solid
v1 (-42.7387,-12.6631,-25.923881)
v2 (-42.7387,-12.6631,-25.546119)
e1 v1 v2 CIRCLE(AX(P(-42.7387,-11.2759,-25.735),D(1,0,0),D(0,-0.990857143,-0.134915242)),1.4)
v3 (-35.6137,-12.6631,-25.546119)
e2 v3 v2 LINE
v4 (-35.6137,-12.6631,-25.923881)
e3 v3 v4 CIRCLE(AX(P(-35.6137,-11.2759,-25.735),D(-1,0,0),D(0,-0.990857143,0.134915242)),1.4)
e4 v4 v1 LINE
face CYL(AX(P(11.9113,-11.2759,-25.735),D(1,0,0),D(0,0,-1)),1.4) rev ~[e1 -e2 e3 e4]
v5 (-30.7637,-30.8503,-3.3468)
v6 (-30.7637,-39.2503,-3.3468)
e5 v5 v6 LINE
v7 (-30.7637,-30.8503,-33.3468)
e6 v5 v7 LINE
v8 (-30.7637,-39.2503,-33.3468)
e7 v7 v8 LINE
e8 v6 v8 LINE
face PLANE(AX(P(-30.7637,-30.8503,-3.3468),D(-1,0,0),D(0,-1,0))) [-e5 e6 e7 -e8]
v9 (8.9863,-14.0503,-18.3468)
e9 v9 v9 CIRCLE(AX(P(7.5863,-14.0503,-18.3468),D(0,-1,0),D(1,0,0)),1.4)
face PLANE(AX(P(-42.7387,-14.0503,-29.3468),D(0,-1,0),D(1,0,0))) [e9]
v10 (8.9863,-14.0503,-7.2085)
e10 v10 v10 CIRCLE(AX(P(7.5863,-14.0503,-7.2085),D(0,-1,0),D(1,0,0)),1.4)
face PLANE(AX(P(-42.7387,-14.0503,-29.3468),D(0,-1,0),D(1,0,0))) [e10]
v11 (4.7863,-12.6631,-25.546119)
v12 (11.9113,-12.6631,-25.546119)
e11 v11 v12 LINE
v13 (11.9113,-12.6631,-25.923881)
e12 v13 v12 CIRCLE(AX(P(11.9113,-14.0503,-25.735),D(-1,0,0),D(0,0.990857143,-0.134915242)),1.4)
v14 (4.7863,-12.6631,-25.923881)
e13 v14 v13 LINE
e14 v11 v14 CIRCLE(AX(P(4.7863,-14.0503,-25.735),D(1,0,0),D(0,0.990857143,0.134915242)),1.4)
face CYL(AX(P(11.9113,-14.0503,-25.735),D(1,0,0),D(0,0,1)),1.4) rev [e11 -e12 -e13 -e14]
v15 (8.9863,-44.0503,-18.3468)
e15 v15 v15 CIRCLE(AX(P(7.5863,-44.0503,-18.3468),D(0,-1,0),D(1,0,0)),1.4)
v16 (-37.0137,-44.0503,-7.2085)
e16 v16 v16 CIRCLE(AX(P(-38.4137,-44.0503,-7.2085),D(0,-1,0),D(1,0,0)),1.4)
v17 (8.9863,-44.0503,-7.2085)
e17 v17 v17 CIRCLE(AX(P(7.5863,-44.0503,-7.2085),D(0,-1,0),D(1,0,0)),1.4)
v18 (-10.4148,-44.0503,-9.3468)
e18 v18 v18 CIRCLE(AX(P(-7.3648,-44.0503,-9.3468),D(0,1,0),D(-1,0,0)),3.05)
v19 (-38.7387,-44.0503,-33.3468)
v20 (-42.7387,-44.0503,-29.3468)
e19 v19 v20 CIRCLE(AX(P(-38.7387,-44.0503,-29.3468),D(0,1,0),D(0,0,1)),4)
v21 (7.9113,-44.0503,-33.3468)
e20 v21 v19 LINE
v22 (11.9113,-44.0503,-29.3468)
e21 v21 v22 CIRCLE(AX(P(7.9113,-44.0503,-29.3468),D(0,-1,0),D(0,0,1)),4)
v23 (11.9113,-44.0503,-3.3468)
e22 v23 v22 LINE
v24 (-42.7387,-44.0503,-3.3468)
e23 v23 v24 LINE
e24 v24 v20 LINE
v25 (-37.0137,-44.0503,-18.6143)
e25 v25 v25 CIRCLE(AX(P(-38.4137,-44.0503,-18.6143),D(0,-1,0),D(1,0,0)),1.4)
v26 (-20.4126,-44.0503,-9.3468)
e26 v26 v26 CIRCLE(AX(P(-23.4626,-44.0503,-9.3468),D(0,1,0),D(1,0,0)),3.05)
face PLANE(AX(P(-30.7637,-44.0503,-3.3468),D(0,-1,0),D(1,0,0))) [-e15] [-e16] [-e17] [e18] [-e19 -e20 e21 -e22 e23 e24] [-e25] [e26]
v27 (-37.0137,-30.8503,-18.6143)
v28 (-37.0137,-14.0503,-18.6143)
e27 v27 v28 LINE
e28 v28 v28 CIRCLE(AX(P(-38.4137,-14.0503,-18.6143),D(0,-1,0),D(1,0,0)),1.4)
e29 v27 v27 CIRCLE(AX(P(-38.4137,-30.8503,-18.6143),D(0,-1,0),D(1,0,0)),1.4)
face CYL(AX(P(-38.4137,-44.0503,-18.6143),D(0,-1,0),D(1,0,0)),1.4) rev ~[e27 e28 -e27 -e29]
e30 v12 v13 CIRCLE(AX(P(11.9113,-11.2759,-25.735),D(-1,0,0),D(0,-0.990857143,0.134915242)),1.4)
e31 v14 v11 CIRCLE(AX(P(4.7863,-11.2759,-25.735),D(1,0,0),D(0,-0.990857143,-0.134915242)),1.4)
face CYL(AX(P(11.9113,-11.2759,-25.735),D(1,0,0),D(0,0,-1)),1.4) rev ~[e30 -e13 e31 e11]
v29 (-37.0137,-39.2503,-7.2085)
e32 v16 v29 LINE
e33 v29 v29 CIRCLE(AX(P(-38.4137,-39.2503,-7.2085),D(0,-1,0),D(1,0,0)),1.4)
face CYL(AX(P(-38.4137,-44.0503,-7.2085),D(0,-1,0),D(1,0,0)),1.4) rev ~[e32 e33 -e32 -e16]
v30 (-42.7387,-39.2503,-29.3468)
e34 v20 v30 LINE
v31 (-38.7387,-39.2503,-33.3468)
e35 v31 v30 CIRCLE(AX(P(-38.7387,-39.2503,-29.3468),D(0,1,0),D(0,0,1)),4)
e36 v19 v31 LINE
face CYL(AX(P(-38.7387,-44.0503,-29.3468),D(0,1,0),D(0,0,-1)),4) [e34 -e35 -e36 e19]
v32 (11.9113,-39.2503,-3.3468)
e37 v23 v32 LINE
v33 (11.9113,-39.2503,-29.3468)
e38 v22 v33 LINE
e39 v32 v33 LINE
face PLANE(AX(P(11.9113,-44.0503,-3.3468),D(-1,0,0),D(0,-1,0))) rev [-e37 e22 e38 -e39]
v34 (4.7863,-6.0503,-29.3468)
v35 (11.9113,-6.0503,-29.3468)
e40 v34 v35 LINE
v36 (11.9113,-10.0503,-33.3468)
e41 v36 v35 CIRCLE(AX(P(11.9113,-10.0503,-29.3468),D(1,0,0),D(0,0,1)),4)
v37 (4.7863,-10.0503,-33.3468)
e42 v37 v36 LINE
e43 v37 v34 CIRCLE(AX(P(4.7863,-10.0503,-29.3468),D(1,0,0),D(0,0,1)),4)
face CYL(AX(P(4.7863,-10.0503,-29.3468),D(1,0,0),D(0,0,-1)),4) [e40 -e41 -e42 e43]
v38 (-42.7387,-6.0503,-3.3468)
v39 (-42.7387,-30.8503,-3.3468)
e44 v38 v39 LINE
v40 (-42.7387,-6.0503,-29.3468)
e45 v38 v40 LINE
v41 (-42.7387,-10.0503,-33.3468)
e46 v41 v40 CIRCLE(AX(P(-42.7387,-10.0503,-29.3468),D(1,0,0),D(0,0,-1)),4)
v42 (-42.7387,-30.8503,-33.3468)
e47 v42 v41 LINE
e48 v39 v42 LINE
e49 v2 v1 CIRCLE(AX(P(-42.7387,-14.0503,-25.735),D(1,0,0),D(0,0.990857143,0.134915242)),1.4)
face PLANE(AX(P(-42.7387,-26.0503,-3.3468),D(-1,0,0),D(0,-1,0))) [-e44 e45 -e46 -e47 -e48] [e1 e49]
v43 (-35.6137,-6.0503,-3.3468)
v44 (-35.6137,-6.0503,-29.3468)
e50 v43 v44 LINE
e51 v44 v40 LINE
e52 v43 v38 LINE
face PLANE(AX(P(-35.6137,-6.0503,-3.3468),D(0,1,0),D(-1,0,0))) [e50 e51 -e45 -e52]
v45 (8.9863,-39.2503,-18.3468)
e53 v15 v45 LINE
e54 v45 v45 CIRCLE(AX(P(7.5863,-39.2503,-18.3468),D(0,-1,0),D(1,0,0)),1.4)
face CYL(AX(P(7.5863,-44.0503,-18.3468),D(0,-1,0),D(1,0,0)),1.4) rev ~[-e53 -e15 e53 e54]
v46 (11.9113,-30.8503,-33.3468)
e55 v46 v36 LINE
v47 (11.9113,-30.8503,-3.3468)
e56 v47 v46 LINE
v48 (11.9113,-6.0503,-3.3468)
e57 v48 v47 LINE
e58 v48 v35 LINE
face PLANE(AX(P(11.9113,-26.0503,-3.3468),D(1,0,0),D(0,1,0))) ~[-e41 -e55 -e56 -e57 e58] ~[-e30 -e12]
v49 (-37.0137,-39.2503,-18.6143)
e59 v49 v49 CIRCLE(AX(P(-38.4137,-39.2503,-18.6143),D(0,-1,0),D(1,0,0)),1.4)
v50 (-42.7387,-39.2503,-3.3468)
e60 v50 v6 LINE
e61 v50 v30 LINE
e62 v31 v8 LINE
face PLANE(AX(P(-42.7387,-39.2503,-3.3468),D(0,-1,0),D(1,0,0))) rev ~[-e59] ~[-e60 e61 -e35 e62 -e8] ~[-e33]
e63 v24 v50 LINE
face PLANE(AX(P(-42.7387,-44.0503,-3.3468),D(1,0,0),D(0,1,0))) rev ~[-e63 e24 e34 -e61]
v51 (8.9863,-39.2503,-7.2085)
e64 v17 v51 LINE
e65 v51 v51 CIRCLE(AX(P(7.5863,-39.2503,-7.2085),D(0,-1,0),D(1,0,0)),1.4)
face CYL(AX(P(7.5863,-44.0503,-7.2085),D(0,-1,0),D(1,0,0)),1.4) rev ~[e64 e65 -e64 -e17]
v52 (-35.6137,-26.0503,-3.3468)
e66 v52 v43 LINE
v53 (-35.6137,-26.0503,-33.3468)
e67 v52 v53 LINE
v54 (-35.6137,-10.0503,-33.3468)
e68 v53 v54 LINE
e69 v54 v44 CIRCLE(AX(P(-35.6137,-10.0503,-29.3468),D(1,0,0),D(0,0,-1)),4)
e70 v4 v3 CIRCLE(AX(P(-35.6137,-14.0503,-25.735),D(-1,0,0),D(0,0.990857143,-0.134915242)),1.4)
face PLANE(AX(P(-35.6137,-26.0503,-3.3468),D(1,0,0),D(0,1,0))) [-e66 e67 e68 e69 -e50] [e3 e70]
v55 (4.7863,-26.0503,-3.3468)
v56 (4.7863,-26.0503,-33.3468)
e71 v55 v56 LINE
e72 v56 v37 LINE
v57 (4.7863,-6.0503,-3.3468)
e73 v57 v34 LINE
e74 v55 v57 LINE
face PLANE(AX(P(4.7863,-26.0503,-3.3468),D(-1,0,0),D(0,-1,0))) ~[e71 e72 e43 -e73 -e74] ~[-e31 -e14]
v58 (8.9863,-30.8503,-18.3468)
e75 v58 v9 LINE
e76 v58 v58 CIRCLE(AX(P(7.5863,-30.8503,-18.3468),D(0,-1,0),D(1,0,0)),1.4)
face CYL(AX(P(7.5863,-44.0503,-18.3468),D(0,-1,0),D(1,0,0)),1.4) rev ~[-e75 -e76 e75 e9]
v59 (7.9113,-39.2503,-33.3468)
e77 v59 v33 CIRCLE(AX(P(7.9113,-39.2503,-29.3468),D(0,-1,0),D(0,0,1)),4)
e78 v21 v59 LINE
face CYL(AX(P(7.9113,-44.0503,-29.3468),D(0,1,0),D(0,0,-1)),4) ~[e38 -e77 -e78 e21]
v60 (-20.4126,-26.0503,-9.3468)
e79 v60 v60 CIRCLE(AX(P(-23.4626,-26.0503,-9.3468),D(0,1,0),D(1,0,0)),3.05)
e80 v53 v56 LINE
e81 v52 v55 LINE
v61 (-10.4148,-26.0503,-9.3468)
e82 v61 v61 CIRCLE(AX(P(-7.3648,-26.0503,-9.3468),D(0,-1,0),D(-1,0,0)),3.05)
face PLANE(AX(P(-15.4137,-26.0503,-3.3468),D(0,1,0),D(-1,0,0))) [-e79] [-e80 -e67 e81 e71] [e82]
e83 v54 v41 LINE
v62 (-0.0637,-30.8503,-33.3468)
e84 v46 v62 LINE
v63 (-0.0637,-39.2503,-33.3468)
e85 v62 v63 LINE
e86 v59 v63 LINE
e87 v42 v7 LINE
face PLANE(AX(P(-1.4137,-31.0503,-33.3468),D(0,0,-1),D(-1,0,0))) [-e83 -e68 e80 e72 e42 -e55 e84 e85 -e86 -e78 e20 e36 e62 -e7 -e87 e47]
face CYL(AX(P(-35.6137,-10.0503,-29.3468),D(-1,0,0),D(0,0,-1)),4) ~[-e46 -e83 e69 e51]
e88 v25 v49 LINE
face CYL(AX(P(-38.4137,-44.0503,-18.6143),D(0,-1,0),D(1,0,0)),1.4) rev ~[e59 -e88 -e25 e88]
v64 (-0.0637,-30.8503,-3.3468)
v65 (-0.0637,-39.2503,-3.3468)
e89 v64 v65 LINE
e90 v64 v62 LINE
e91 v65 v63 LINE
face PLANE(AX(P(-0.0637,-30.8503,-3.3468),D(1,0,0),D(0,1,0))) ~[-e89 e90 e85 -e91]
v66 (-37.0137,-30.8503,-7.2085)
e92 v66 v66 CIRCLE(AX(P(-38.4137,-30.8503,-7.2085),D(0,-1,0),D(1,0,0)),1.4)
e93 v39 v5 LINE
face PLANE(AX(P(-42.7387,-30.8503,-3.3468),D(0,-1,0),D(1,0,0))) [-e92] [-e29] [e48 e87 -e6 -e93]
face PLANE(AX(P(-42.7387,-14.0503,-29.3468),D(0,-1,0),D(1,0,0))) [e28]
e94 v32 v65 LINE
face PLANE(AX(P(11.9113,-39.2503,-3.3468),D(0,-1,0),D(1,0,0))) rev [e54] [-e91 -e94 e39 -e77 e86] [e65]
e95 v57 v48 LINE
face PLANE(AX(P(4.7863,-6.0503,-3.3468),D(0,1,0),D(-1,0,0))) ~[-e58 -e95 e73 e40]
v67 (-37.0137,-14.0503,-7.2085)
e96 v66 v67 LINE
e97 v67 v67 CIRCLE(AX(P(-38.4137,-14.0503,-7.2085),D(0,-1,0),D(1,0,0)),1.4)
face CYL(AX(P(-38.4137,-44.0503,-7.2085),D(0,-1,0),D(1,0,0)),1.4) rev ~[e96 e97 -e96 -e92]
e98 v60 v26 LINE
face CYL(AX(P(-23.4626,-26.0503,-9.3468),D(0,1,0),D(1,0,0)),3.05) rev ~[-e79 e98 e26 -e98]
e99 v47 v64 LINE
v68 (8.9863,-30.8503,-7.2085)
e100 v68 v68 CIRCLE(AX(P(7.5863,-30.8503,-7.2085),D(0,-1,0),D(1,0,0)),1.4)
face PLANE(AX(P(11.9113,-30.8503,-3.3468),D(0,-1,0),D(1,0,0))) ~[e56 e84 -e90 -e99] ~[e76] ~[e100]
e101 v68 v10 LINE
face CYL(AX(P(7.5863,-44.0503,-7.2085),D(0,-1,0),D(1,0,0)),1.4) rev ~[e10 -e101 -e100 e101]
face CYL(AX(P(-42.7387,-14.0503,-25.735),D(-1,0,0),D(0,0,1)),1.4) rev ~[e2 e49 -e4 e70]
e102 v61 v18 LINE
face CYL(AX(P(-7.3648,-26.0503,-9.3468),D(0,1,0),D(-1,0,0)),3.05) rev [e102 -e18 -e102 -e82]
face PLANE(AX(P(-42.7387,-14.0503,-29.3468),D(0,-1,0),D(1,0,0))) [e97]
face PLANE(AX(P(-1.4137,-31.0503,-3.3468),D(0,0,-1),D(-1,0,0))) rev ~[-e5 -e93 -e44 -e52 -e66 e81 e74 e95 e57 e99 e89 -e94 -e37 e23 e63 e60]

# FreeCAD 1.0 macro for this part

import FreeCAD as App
import Part
import Sketcher

V = App.Vector
Q = App.Units.Quantity


def edges_at(feature, points):
    """Names of the edges that pass closest to the given points."""
    edges = feature.Shape.Edges
    near = lambda p: min(range(len(edges)), key=lambda i: edges[i].distToShape(Part.Vertex(*p))[0])
    return sorted({f"Edge{near(p) + 1}" for p in points})


def add_polygon(sketch, points):
    """Adds a closed chain of lines whose ends are joined by coincident constraints."""
    first, n = sketch.GeometryCount, len(points)
    for a, b in zip(points, points[1:] + points[:1]):
        sketch.addGeometry(Part.LineSegment(App.Vector(*a, 0), App.Vector(*b, 0)), False)
    for i in range(n):
        sketch.addConstraint(Sketcher.Constraint("Coincident", first + i, 2, first + (i + 1) % n, 1))

doc = App.newDocument("Part")
body = doc.addObject("PartDesign::Body", "Body")

# Sketch on XY plane
sketch1 = body.newObject("Sketcher::SketchObject", "Sketch")
sketch1.AttachmentSupport = (doc.getObject("XY_Plane"), [""])
sketch1.MapMode = "FlatFace"
sketch1.AttachmentOffset = App.Placement(V(0, 0, -3.3468), App.Rotation())
add_polygon(sketch1, [(-15.4, -26.1), (-15.4, -44.1), (-42.7, -44.1), (-42.7, -39.3), (-30.8, -39.3), (-30.8, -30.9), (-42.7, -30.9), (-42.7, -6.1), (-35.6, -6.1), (-35.6, -26.1)])  # lines 0-9
sketch1.addConstraint(Sketcher.Constraint("Vertical", 0))
sketch1.addConstraint(Sketcher.Constraint("Horizontal", 1))
sketch1.addConstraint(Sketcher.Constraint("Vertical", 2))
sketch1.addConstraint(Sketcher.Constraint("Horizontal", 3))
sketch1.addConstraint(Sketcher.Constraint("Vertical", 4))
sketch1.addConstraint(Sketcher.Constraint("Horizontal", 5))
sketch1.addConstraint(Sketcher.Constraint("Vertical", 6))
sketch1.addConstraint(Sketcher.Constraint("Horizontal", 7))
sketch1.addConstraint(Sketcher.Constraint("Vertical", 8))
sketch1.addConstraint(Sketcher.Constraint("Horizontal", 9))
sketch1.addConstraint(Sketcher.Constraint("Vertical", 2, 2, 5, 2))
sketch1.addConstraint(Sketcher.Constraint("DistanceY", 8, 2, 8, 1, Q("20 mm")))
sketch1.addConstraint(Sketcher.Constraint("DistanceY", 0, 2, 0, 1, Q("18 mm")))
sketch1.addConstraint(Sketcher.Constraint("DistanceX", 9, 1, 9, 2, Q("20.2 mm")))
sketch1.addConstraint(Sketcher.Constraint("DistanceY", 2, 1, 2, 2, Q("4.8 mm")))
sketch1.addConstraint(Sketcher.Constraint("DistanceY", 4, 1, 4, 2, Q("8.4 mm")))
sketch1.addConstraint(Sketcher.Constraint("DistanceX", 1, 2, 1, 1, Q("27.325 mm")))
sketch1.addConstraint(Sketcher.Constraint("DistanceX", 3, 1, 3, 2, Q("11.975 mm")))
sketch1.addConstraint(Sketcher.Constraint("DistanceX", 0, 2, -1, 1, Q("15.4137 mm")))
sketch1.addConstraint(Sketcher.Constraint("DistanceY", 0, 2, -1, 1, Q("44.0503 mm")))
pad1 = body.newObject("PartDesign::Pad", "Pad")
pad1.Profile = sketch1
pad1.Length = 30
pad1.Reversed = True

# Sketch on XZ plane
sketch2 = body.newObject("Sketcher::SketchObject", "Sketch001")
sketch2.AttachmentSupport = (doc.getObject("XZ_Plane"), [""])
sketch2.MapMode = "FlatFace"
sketch2.AttachmentOffset = App.Placement(V(0, 0, 26.0503), App.Rotation())
sketch2.addGeometry(Part.Circle(V(-23.5, -9.3, 0), V(0, 0, 1), 3), False)
sketch2.addConstraint(Sketcher.Constraint("Diameter", 0, Q("6.1 mm")))
sketch2.addConstraint(Sketcher.Constraint("DistanceX", 0, 3, -1, 1, Q("23.4626 mm")))
sketch2.addConstraint(Sketcher.Constraint("DistanceY", 0, 3, -1, 1, Q("9.3468 mm")))
pocket1 = body.newObject("PartDesign::Pocket", "Pocket")
pocket1.Profile = sketch2
pocket1.Length = 25.4
pocket1.Reversed = True

# Sketch on YZ plane
sketch3 = body.newObject("Sketcher::SketchObject", "Sketch002")
sketch3.AttachmentSupport = (doc.getObject("YZ_Plane"), [""])
sketch3.MapMode = "FlatFace"
sketch3.AttachmentOffset = App.Placement(V(0, 0, -42.7387), App.Rotation())
sketch3.addGeometry(Part.Circle(V(-14.1, -25.7, 0), V(0, 0, 1), 1.4), False)
sketch3.addConstraint(Sketcher.Constraint("Diameter", 0, Q("2.8 mm")))
sketch3.addConstraint(Sketcher.Constraint("DistanceY", 0, 3, -1, 1, Q("25.735 mm")))
sketch3.addConstraint(Sketcher.Constraint("DistanceX", 0, 3, -1, 1, Q("14.0503 mm")))
pocket2 = body.newObject("PartDesign::Pocket", "Pocket001")
pocket2.Profile = sketch3
pocket2.Length = 30
pocket2.Reversed = True
doc.recompute()

fillet = body.newObject("PartDesign::Fillet", "Fillet")
fillet.Base = (pocket2, edges_at(pocket2, [(-39.176, -6.05, -33.347), (-42.739, -41.65, -33.347)]))
fillet.Radius = 4
doc.recompute()

datumplane = body.newObject("PartDesign::Plane", "DatumPlane")
datumplane.AttachmentSupport = (doc.getObject("YZ_Plane"), [""])
datumplane.MapMode = "FlatFace"
datumplane.AttachmentOffset = App.Placement(V(0, 0, -15.4137), App.Rotation())
mirrored = body.newObject("PartDesign::Mirrored", "Mirrored")
mirrored.Originals = [pad1, pocket1, pocket2, fillet]
mirrored.MirrorPlane = (datumplane, [""])
body.Tip = mirrored

# Sketch on XZ plane
sketch4 = body.newObject("Sketcher::SketchObject", "Sketch003")
sketch4.AttachmentSupport = (doc.getObject("XZ_Plane"), [""])
sketch4.MapMode = "FlatFace"
sketch4.AttachmentOffset = App.Placement(V(0, 0, 44.0503), App.Rotation())
sketch4.addGeometry(Part.Circle(V(-38.4, -7.2, 0), V(0, 0, 1), 1.4), False)
sketch4.addGeometry(Part.Circle(V(-38.4, -18.6, 0), V(0, 0, 1), 1.4), False)
sketch4.addGeometry(Part.Circle(V(7.6, -7.2, 0), V(0, 0, 1), 1.4), False)
sketch4.addGeometry(Part.Circle(V(7.6, -18.3, 0), V(0, 0, 1), 1.4), False)
sketch4.addConstraint(Sketcher.Constraint("Equal", 0, 1))
sketch4.addConstraint(Sketcher.Constraint("Equal", 1, 2))
sketch4.addConstraint(Sketcher.Constraint("Equal", 2, 3))
sketch4.addConstraint(Sketcher.Constraint("Horizontal", 0, 3, 2, 3))
sketch4.addConstraint(Sketcher.Constraint("Vertical", 0, 3, 1, 3))
sketch4.addConstraint(Sketcher.Constraint("Vertical", 2, 3, 3, 3))
sketch4.addConstraint(Sketcher.Constraint("Diameter", 0, Q("2.8 mm")))
sketch4.addConstraint(Sketcher.Constraint("DistanceX", 0, 3, 2, 3, Q("46 mm")))
sketch4.addConstraint(Sketcher.Constraint("DistanceX", 0, 3, -1, 1, Q("38.4137 mm")))
sketch4.addConstraint(Sketcher.Constraint("DistanceY", 0, 3, -1, 1, Q("7.2085 mm")))
sketch4.addConstraint(Sketcher.Constraint("DistanceY", 1, 3, -1, 1, Q("18.6143 mm")))
sketch4.addConstraint(Sketcher.Constraint("DistanceY", 3, 3, -1, 1, Q("18.3468 mm")))
pocket3 = body.newObject("PartDesign::Pocket", "Pocket002")
pocket3.Profile = sketch4
pocket3.Length = 30

# Sketch on YZ plane
sketch5 = body.newObject("Sketcher::SketchObject", "Sketch004")
sketch5.AttachmentSupport = (doc.getObject("YZ_Plane"), [""])
sketch5.MapMode = "FlatFace"
sketch5.AttachmentOffset = App.Placement(V(0, 0, 11.9113), App.Rotation())
sketch5.addGeometry(Part.Circle(V(-11.3, -25.7, 0), V(0, 0, 1), 1.4), False)
sketch5.addConstraint(Sketcher.Constraint("Diameter", 0, Q("2.8 mm")))
sketch5.addConstraint(Sketcher.Constraint("DistanceX", 0, 3, -1, 1, Q("11.276 mm")))
sketch5.addConstraint(Sketcher.Constraint("DistanceY", 0, 3, -1, 1, Q("25.735 mm")))
pocket4 = body.newObject("PartDesign::Pocket", "Pocket003")
pocket4.Profile = sketch5
pocket4.Type = "ThroughAll"

doc.recompute()
